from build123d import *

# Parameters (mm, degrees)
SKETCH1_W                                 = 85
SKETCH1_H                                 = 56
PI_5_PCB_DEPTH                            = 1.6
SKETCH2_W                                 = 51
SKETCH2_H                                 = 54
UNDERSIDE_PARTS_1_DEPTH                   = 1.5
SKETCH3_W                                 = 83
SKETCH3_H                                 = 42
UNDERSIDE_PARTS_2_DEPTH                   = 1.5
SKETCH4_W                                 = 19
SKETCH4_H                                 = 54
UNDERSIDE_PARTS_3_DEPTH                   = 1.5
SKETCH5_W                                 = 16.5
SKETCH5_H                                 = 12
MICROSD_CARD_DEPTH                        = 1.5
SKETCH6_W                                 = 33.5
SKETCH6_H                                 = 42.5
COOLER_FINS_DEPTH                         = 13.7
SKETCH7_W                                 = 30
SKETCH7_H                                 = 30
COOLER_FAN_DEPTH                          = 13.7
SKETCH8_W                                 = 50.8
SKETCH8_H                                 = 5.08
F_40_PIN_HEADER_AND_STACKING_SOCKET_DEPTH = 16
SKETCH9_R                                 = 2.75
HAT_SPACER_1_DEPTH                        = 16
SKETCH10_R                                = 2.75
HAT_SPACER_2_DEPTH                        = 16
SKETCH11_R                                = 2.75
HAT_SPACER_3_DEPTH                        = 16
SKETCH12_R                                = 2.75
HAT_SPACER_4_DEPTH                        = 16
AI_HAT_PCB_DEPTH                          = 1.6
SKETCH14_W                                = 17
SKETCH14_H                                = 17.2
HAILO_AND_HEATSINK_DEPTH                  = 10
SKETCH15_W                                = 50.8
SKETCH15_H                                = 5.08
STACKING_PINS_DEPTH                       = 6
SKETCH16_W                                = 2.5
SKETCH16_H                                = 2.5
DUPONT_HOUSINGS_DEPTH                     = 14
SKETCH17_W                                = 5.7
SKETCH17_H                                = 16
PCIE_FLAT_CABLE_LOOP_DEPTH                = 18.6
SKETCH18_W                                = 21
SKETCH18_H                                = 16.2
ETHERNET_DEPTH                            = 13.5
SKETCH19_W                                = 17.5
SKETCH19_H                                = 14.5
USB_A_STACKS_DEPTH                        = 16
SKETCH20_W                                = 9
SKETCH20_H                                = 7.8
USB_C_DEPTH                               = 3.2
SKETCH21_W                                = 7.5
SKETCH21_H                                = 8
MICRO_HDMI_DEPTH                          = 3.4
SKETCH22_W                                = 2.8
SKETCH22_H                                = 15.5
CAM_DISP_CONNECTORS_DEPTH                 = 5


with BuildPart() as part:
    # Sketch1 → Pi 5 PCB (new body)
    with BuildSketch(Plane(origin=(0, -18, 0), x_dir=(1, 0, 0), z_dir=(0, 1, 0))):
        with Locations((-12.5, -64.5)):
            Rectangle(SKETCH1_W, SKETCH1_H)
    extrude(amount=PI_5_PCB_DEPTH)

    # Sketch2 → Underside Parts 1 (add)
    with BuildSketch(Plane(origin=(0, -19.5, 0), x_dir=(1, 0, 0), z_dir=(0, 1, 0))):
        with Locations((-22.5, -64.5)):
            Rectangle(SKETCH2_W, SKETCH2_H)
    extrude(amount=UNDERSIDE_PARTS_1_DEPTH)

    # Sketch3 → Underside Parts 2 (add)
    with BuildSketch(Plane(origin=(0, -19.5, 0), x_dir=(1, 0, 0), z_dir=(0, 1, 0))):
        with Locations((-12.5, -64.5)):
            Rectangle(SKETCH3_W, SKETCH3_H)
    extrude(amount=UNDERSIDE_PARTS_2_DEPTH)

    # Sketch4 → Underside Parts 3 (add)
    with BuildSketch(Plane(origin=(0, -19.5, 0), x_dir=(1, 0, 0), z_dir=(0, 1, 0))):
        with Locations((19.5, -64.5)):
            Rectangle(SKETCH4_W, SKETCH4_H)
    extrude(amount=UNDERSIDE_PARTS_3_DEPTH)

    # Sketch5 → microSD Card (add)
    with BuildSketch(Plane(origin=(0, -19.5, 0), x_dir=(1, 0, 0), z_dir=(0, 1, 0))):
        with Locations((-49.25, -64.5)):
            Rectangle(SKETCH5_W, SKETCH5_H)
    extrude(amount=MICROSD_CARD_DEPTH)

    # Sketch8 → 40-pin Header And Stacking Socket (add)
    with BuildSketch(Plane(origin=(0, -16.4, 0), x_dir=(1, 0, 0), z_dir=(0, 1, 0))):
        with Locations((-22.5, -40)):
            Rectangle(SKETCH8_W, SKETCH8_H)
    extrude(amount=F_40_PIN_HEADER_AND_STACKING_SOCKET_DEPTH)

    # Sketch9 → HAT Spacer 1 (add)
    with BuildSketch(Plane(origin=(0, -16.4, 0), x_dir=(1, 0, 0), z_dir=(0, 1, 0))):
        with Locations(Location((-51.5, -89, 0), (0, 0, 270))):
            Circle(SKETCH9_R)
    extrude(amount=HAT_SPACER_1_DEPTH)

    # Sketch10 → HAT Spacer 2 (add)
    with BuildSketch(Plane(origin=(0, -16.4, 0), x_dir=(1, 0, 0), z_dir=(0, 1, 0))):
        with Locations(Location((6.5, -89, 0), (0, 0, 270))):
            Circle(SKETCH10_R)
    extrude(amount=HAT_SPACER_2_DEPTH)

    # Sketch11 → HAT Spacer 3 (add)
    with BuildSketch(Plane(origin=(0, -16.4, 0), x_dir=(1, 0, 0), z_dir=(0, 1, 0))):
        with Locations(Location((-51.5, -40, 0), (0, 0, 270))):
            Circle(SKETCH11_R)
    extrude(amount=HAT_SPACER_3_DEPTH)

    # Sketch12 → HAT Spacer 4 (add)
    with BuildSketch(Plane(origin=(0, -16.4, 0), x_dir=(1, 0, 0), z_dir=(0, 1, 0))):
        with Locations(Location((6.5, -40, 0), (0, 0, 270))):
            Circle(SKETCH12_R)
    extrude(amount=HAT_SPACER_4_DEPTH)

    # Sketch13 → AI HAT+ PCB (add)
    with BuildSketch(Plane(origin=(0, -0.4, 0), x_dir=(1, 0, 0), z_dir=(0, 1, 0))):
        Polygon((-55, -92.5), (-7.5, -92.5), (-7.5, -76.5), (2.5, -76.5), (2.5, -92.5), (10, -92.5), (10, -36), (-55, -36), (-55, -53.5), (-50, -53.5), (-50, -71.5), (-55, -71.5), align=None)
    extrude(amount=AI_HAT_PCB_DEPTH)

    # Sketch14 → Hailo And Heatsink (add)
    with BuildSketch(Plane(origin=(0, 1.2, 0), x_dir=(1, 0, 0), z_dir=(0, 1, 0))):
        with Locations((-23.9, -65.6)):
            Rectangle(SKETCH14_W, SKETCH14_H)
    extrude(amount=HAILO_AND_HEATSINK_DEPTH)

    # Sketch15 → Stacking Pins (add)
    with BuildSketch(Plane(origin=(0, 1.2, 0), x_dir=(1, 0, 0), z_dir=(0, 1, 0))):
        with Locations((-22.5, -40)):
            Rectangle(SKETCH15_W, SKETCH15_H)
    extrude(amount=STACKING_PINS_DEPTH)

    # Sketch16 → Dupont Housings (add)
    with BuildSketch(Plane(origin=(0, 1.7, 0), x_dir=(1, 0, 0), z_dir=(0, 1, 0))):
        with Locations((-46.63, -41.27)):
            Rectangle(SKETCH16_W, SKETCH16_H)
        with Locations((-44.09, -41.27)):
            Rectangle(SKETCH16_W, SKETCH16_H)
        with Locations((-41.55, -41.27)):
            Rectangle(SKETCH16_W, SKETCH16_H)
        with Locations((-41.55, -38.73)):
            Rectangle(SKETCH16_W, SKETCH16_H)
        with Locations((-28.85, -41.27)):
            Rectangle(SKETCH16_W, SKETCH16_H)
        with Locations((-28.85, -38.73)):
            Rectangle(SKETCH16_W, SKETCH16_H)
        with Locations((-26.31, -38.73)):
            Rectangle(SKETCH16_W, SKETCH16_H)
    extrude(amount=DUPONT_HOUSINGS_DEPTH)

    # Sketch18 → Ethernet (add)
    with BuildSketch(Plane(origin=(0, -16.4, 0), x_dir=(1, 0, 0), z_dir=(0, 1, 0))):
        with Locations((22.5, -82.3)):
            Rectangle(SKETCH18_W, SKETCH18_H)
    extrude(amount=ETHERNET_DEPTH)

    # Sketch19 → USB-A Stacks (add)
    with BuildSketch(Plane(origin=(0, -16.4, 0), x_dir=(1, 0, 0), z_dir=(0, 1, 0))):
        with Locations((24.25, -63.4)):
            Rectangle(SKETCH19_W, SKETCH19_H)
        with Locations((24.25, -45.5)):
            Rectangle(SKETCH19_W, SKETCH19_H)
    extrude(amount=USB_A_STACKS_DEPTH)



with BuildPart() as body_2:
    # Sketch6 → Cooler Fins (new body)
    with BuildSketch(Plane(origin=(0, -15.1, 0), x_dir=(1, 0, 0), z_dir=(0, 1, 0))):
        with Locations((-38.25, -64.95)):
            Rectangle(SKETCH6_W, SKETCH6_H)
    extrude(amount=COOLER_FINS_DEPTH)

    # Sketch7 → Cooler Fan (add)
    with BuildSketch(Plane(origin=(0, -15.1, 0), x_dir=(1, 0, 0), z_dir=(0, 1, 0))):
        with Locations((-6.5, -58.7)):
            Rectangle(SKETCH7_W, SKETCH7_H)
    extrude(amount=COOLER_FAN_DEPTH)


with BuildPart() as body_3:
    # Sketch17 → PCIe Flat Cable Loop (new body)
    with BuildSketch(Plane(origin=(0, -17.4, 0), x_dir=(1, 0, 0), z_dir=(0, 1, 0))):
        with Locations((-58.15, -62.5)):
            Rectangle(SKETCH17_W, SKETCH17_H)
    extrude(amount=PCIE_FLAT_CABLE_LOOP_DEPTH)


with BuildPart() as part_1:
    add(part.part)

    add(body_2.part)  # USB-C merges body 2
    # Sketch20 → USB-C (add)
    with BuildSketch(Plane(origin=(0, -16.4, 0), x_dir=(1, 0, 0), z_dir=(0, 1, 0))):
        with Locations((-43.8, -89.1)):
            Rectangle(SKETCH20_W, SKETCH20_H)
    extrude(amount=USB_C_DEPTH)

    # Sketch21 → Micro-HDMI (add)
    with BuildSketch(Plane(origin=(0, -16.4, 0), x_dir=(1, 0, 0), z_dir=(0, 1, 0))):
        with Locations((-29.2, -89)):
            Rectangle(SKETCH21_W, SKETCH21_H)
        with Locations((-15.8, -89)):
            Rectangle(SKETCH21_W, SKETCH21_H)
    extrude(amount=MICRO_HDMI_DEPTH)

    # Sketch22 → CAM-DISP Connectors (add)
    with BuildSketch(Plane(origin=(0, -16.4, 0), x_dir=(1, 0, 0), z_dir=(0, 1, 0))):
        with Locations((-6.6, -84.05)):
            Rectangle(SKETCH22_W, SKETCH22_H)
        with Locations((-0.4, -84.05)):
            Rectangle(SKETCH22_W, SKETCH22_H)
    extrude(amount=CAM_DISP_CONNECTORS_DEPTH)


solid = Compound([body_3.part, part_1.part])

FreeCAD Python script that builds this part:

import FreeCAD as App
import Part
import Sketcher
Q = App.Units.Quantity

doc = App.newDocument("Part")
body = doc.addObject("PartDesign::Body", "Body")

# Sketch on XZ plane
sketch1 = body.newObject("Sketcher::SketchObject", "Sketch")
sketch1.AttachmentSupport = (doc.getObject("XZ_Plane"), [""])
sketch1.MapMode = "FlatFace"
sketch1.AttachmentOffset = App.Placement(App.Vector(0, 0, 18), App.Rotation())
sketch1.addGeometry([
    Part.LineSegment(App.Vector(-55, 36, 0), App.Vector(-55, 92, 0)),
    Part.LineSegment(App.Vector(-55, 92, 0), App.Vector(30, 92, 0)),
    Part.LineSegment(App.Vector(30, 92, 0), App.Vector(30, 36, 0)),
    Part.LineSegment(App.Vector(30, 36, 0), App.Vector(-55, 36, 0)),
], False)
sketch1.addConstraint([
    Sketcher.Constraint("Coincident", 0, 2, 1, 1),
    Sketcher.Constraint("Coincident", 1, 2, 2, 1),
    Sketcher.Constraint("Coincident", 2, 2, 3, 1),
    Sketcher.Constraint("Coincident", 3, 2, 0, 1),
    Sketcher.Constraint("Vertical", 0),
    Sketcher.Constraint("Horizontal", 1),
    Sketcher.Constraint("Vertical", 2),
    Sketcher.Constraint("Horizontal", 3),
    Sketcher.Constraint("DistanceX", 1, 1, 1, 2, Q("85 mm")),
    Sketcher.Constraint("DistanceY", 0, 1, 0, 2, Q("56 mm")),
    Sketcher.Constraint("DistanceX", 0, 2, -1, 1, Q("55 mm")),
    Sketcher.Constraint("DistanceY", -1, 1, 0, 2, Q("92.5 mm")),
])
pad1 = body.newObject("PartDesign::Pad", "Pad")
pad1.Profile = sketch1
pad1.Length = 1.6
pad1.Reversed = True

# Sketch on XZ plane
sketch2 = body.newObject("Sketcher::SketchObject", "Sketch001")
sketch2.AttachmentSupport = (doc.getObject("XZ_Plane"), [""])
sketch2.MapMode = "FlatFace"
sketch2.AttachmentOffset = App.Placement(App.Vector(0, 0, 19.5), App.Rotation())
sketch2.addGeometry([
    Part.LineSegment(App.Vector(-48, 38, 0), App.Vector(-48, 92, 0)),
    Part.LineSegment(App.Vector(-48, 92, 0), App.Vector(3, 92, 0)),
    Part.LineSegment(App.Vector(3, 92, 0), App.Vector(3, 38, 0)),
    Part.LineSegment(App.Vector(3, 38, 0), App.Vector(-48, 38, 0)),
], False)
sketch2.addConstraint([
    Sketcher.Constraint("Coincident", 0, 2, 1, 1),
    Sketcher.Constraint("Coincident", 1, 2, 2, 1),
    Sketcher.Constraint("Coincident", 2, 2, 3, 1),
    Sketcher.Constraint("Coincident", 3, 2, 0, 1),
    Sketcher.Constraint("Vertical", 0),
    Sketcher.Constraint("Horizontal", 1),
    Sketcher.Constraint("Vertical", 2),
    Sketcher.Constraint("Horizontal", 3),
    Sketcher.Constraint("DistanceX", 1, 1, 1, 2, Q("51 mm")),
    Sketcher.Constraint("DistanceY", 0, 1, 0, 2, Q("54 mm")),
    Sketcher.Constraint("DistanceX", 0, 2, -1, 1, Q("48 mm")),
    Sketcher.Constraint("DistanceY", -1, 1, 0, 2, Q("91.5 mm")),
])
pad2 = body.newObject("PartDesign::Pad", "Pad001")
pad2.Profile = sketch2
pad2.Length = 1.5
pad2.Reversed = True

# Sketch on XZ plane
sketch3 = body.newObject("Sketcher::SketchObject", "Sketch002")
sketch3.AttachmentSupport = (doc.getObject("XZ_Plane"), [""])
sketch3.MapMode = "FlatFace"
sketch3.AttachmentOffset = App.Placement(App.Vector(0, 0, 19.5), App.Rotation())
sketch3.addGeometry([
    Part.LineSegment(App.Vector(-54, 44, 0), App.Vector(-54, 86, 0)),
    Part.LineSegment(App.Vector(-54, 86, 0), App.Vector(29, 86, 0)),
    Part.LineSegment(App.Vector(29, 86, 0), App.Vector(29, 44, 0)),
    Part.LineSegment(App.Vector(29, 44, 0), App.Vector(-54, 44, 0)),
], False)
sketch3.addConstraint([
    Sketcher.Constraint("Coincident", 0, 2, 1, 1),
    Sketcher.Constraint("Coincident", 1, 2, 2, 1),
    Sketcher.Constraint("Coincident", 2, 2, 3, 1),
    Sketcher.Constraint("Coincident", 3, 2, 0, 1),
    Sketcher.Constraint("Vertical", 0),
    Sketcher.Constraint("Horizontal", 1),
    Sketcher.Constraint("Vertical", 2),
    Sketcher.Constraint("Horizontal", 3),
    Sketcher.Constraint("DistanceX", 1, 1, 1, 2, Q("83 mm")),
    Sketcher.Constraint("DistanceY", 0, 1, 0, 2, Q("42 mm")),
    Sketcher.Constraint("DistanceX", 0, 2, -1, 1, Q("54 mm")),
    Sketcher.Constraint("DistanceY", -1, 1, 0, 2, Q("85.5 mm")),
])
pad3 = body.newObject("PartDesign::Pad", "Pad002")
pad3.Profile = sketch3
pad3.Length = 1.5
pad3.Reversed = True

# Sketch on XZ plane
sketch4 = body.newObject("Sketcher::SketchObject", "Sketch003")
sketch4.AttachmentSupport = (doc.getObject("XZ_Plane"), [""])
sketch4.MapMode = "FlatFace"
sketch4.AttachmentOffset = App.Placement(App.Vector(0, 0, 19.5), App.Rotation())
sketch4.addGeometry([
    Part.LineSegment(App.Vector(10, 38, 0), App.Vector(10, 92, 0)),
    Part.LineSegment(App.Vector(10, 92, 0), App.Vector(29, 92, 0)),
    Part.LineSegment(App.Vector(29, 92, 0), App.Vector(29, 38, 0)),
    Part.LineSegment(App.Vector(29, 38, 0), App.Vector(10, 38, 0)),
], False)
sketch4.addConstraint([
    Sketcher.Constraint("Coincident", 0, 2, 1, 1),
    Sketcher.Constraint("Coincident", 1, 2, 2, 1),
    Sketcher.Constraint("Coincident", 2, 2, 3, 1),
    Sketcher.Constraint("Coincident", 3, 2, 0, 1),
    Sketcher.Constraint("Vertical", 0),
    Sketcher.Constraint("Horizontal", 1),
    Sketcher.Constraint("Vertical", 2),
    Sketcher.Constraint("Horizontal", 3),
    Sketcher.Constraint("DistanceX", 1, 1, 1, 2, Q("19 mm")),
    Sketcher.Constraint("DistanceY", 0, 1, 0, 2, Q("54 mm")),
    Sketcher.Constraint("DistanceX", -1, 1, 0, 2, Q("10 mm")),
    Sketcher.Constraint("DistanceY", -1, 1, 0, 2, Q("91.5 mm")),
])
pad4 = body.newObject("PartDesign::Pad", "Pad003")
pad4.Profile = sketch4
pad4.Length = 1.5
pad4.Reversed = True

# Sketch on XZ plane
sketch5 = body.newObject("Sketcher::SketchObject", "Sketch004")
sketch5.AttachmentSupport = (doc.getObject("XZ_Plane"), [""])
sketch5.MapMode = "FlatFace"
sketch5.AttachmentOffset = App.Placement(App.Vector(0, 0, 19.5), App.Rotation())
sketch5.addGeometry([
    Part.LineSegment(App.Vector(-58, 58, 0), App.Vector(-58, 70, 0)),
    Part.LineSegment(App.Vector(-58, 70, 0), App.Vector(-41, 70, 0)),
    Part.LineSegment(App.Vector(-41, 70, 0), App.Vector(-41, 58, 0)),
    Part.LineSegment(App.Vector(-41, 58, 0), App.Vector(-58, 58, 0)),
], False)
sketch5.addConstraint([
    Sketcher.Constraint("Coincident", 0, 2, 1, 1),
    Sketcher.Constraint("Coincident", 1, 2, 2, 1),
    Sketcher.Constraint("Coincident", 2, 2, 3, 1),
    Sketcher.Constraint("Coincident", 3, 2, 0, 1),
    Sketcher.Constraint("Vertical", 0),
    Sketcher.Constraint("Horizontal", 1),
    Sketcher.Constraint("Vertical", 2),
    Sketcher.Constraint("Horizontal", 3),
    Sketcher.Constraint("DistanceY", 0, 1, 0, 2, Q("12 mm")),
    Sketcher.Constraint("DistanceX", 1, 1, 1, 2, Q("16.5 mm")),
    Sketcher.Constraint("DistanceX", 1, 2, -1, 1, Q("41 mm")),
    Sketcher.Constraint("DistanceY", -1, 1, 0, 2, Q("70.5 mm")),
])
pad5 = body.newObject("PartDesign::Pad", "Pad004")
pad5.Profile = sketch5
pad5.Length = 1.5
pad5.Reversed = True

# Sketch on XZ plane
sketch6 = body.newObject("Sketcher::SketchObject", "Sketch005")
sketch6.AttachmentSupport = (doc.getObject("XZ_Plane"), [""])
sketch6.MapMode = "FlatFace"
sketch6.AttachmentOffset = App.Placement(App.Vector(0, 0, 16.4), App.Rotation())
sketch6.addGeometry([
    Part.LineSegment(App.Vector(-48, 37, 0), App.Vector(-48, 43, 0)),
    Part.LineSegment(App.Vector(-48, 43, 0), App.Vector(3, 43, 0)),
    Part.LineSegment(App.Vector(3, 43, 0), App.Vector(3, 37, 0)),
    Part.LineSegment(App.Vector(3, 37, 0), App.Vector(-48, 37, 0)),
], False)
sketch6.addConstraint([
    Sketcher.Constraint("Coincident", 0, 2, 1, 1),
    Sketcher.Constraint("Coincident", 1, 2, 2, 1),
    Sketcher.Constraint("Coincident", 2, 2, 3, 1),
    Sketcher.Constraint("Coincident", 3, 2, 0, 1),
    Sketcher.Constraint("Vertical", 0),
    Sketcher.Constraint("Horizontal", 1),
    Sketcher.Constraint("Vertical", 2),
    Sketcher.Constraint("Horizontal", 3),
    Sketcher.Constraint("DistanceX", 1, 1, 1, 2, Q("50.8 mm")),
    Sketcher.Constraint("DistanceY", 0, 1, 0, 2, Q("5.08 mm")),
    Sketcher.Constraint("DistanceX", 0, 2, -1, 1, Q("47.9 mm")),
    Sketcher.Constraint("DistanceY", -1, 1, 0, 2, Q("42.54 mm")),
])
pad6 = body.newObject("PartDesign::Pad", "Pad005")
pad6.Profile = sketch6
pad6.Length = 16
pad6.Reversed = True

# Sketch on XZ plane
sketch7 = body.newObject("Sketcher::SketchObject", "Sketch006")
sketch7.AttachmentSupport = (doc.getObject("XZ_Plane"), [""])
sketch7.MapMode = "FlatFace"
sketch7.AttachmentOffset = App.Placement(App.Vector(0, 0, 16.4), App.Rotation())
sketch7.addGeometry(Part.Circle(App.Vector(-51.5, 89, 0), App.Vector(0, 0, 1), 2.8), False)
sketch7.addConstraint([
    Sketcher.Constraint("Diameter", 0, Q("5.5 mm")),
    Sketcher.Constraint("DistanceY", -1, 1, 0, 3, Q("89 mm")),
    Sketcher.Constraint("DistanceX", 0, 3, -1, 1, Q("51.5 mm")),
])
pad7 = body.newObject("PartDesign::Pad", "Pad006")
pad7.Profile = sketch7
pad7.Length = 16
pad7.Reversed = True

# Sketch on XZ plane
sketch8 = body.newObject("Sketcher::SketchObject", "Sketch007")
sketch8.AttachmentSupport = (doc.getObject("XZ_Plane"), [""])
sketch8.MapMode = "FlatFace"
sketch8.AttachmentOffset = App.Placement(App.Vector(0, 0, 16.4), App.Rotation())
sketch8.addGeometry(Part.Circle(App.Vector(6.5, 89, 0), App.Vector(0, 0, 1), 2.8), False)
sketch8.addConstraint([
    Sketcher.Constraint("Diameter", 0, Q("5.5 mm")),
    Sketcher.Constraint("DistanceY", -1, 1, 0, 3, Q("89 mm")),
    Sketcher.Constraint("DistanceX", -1, 1, 0, 3, Q("6.5 mm")),
])
pad8 = body.newObject("PartDesign::Pad", "Pad007")
pad8.Profile = sketch8
pad8.Length = 16
pad8.Reversed = True

# Sketch on XZ plane
sketch9 = body.newObject("Sketcher::SketchObject", "Sketch008")
sketch9.AttachmentSupport = (doc.getObject("XZ_Plane"), [""])
sketch9.MapMode = "FlatFace"
sketch9.AttachmentOffset = App.Placement(App.Vector(0, 0, 16.4), App.Rotation())
sketch9.addGeometry(Part.Circle(App.Vector(-51.5, 40, 0), App.Vector(0, 0, 1), 2.8), False)
sketch9.addConstraint([
    Sketcher.Constraint("Diameter", 0, Q("5.5 mm")),
    Sketcher.Constraint("DistanceY", -1, 1, 0, 3, Q("40 mm")),
    Sketcher.Constraint("DistanceX", 0, 3, -1, 1, Q("51.5 mm")),
])
pad9 = body.newObject("PartDesign::Pad", "Pad008")
pad9.Profile = sketch9
pad9.Length = 16
pad9.Reversed = True

# Sketch on XZ plane
sketch10 = body.newObject("Sketcher::SketchObject", "Sketch009")
sketch10.AttachmentSupport = (doc.getObject("XZ_Plane"), [""])
sketch10.MapMode = "FlatFace"
sketch10.AttachmentOffset = App.Placement(App.Vector(0, 0, 16.4), App.Rotation())
sketch10.addGeometry(Part.Circle(App.Vector(6.5, 40, 0), App.Vector(0, 0, 1), 2.8), False)
sketch10.addConstraint([
    Sketcher.Constraint("Diameter", 0, Q("5.5 mm")),
    Sketcher.Constraint("DistanceY", -1, 1, 0, 3, Q("40 mm")),
    Sketcher.Constraint("DistanceX", -1, 1, 0, 3, Q("6.5 mm")),
])
pad10 = body.newObject("PartDesign::Pad", "Pad009")
pad10.Profile = sketch10
pad10.Length = 16
pad10.Reversed = True

# Sketch on XZ plane
sketch11 = body.newObject("Sketcher::SketchObject", "Sketch010")
sketch11.AttachmentSupport = (doc.getObject("XZ_Plane"), [""])
sketch11.MapMode = "FlatFace"
sketch11.AttachmentOffset = App.Placement(App.Vector(0, 0, 0.4), App.Rotation())
sketch11.addGeometry([
    Part.LineSegment(App.Vector(-55, 92, 0), App.Vector(-8, 92, 0)),  # 0
    Part.LineSegment(App.Vector(-8, 92, 0), App.Vector(-8, 76, 0)),  # 1
    Part.LineSegment(App.Vector(-8, 76, 0), App.Vector(2, 76, 0)),  # 2
    Part.LineSegment(App.Vector(2, 76, 0), App.Vector(2, 92, 0)),  # 3
    Part.LineSegment(App.Vector(2, 92, 0), App.Vector(10, 92, 0)),  # 4
    Part.LineSegment(App.Vector(10, 92, 0), App.Vector(10, 36, 0)),  # 5
    Part.LineSegment(App.Vector(10, 36, 0), App.Vector(-55, 36, 0)),  # 6
    Part.LineSegment(App.Vector(-55, 36, 0), App.Vector(-55, 54, 0)),  # 7
    Part.LineSegment(App.Vector(-55, 54, 0), App.Vector(-50, 54, 0)),  # 8
    Part.LineSegment(App.Vector(-50, 54, 0), App.Vector(-50, 72, 0)),  # 9
    Part.LineSegment(App.Vector(-50, 72, 0), App.Vector(-55, 72, 0)),  # 10
    Part.LineSegment(App.Vector(-55, 72, 0), App.Vector(-55, 92, 0)),  # 11
], False)
sketch11.addConstraint([
    Sketcher.Constraint("Coincident", 0, 2, 1, 1),
    Sketcher.Constraint("Coincident", 1, 2, 2, 1),
    Sketcher.Constraint("Coincident", 2, 2, 3, 1),
    Sketcher.Constraint("Coincident", 3, 2, 4, 1),
    Sketcher.Constraint("Coincident", 4, 2, 5, 1),
    Sketcher.Constraint("Coincident", 5, 2, 6, 1),
    Sketcher.Constraint("Coincident", 6, 2, 7, 1),
    Sketcher.Constraint("Coincident", 7, 2, 8, 1),
    Sketcher.Constraint("Coincident", 8, 2, 9, 1),
    Sketcher.Constraint("Coincident", 9, 2, 10, 1),
    Sketcher.Constraint("Coincident", 10, 2, 11, 1),
    Sketcher.Constraint("Coincident", 11, 2, 0, 1),
    Sketcher.Constraint("Horizontal", 0),
    Sketcher.Constraint("Vertical", 1),
    Sketcher.Constraint("Horizontal", 2),
    Sketcher.Constraint("Vertical", 3),
    Sketcher.Constraint("Horizontal", 4),
    Sketcher.Constraint("Vertical", 5),
    Sketcher.Constraint("Horizontal", 6),
    Sketcher.Constraint("Vertical", 7),
    Sketcher.Constraint("Horizontal", 8),
    Sketcher.Constraint("Vertical", 9),
    Sketcher.Constraint("Horizontal", 10),
    Sketcher.Constraint("Vertical", 11),
    Sketcher.Constraint("Horizontal", 0, 2, 3, 2),
    Sketcher.Constraint("Vertical", 7, 2, 10, 2),
    Sketcher.Constraint("DistanceX", 2, 1, 2, 2, Q("10 mm")),
    Sketcher.Constraint("DistanceX", 6, 2, 6, 1, Q("65 mm")),
    Sketcher.Constraint("DistanceX", 8, 1, 8, 2, Q("5 mm")),
    Sketcher.Constraint("DistanceY", 1, 2, 1, 1, Q("16 mm")),
    Sketcher.Constraint("DistanceY", 9, 1, 9, 2, Q("18 mm")),
    Sketcher.Constraint("DistanceY", 11, 1, 11, 2, Q("21 mm")),
    Sketcher.Constraint("DistanceX", 0, 1, 0, 2, Q("47.5 mm")),
    Sketcher.Constraint("DistanceY", 5, 2, 5, 1, Q("56.5 mm")),
    Sketcher.Constraint("DistanceX", -1, 1, 4, 2, Q("10 mm")),
    Sketcher.Constraint("DistanceY", -1, 1, 5, 2, Q("36 mm")),
])
pad11 = body.newObject("PartDesign::Pad", "Pad010")
pad11.Profile = sketch11
pad11.Length = 1.6
pad11.Reversed = True

# Sketch on XZ plane
sketch12 = body.newObject("Sketcher::SketchObject", "Sketch011")
sketch12.AttachmentSupport = (doc.getObject("XZ_Plane"), [""])
sketch12.MapMode = "FlatFace"
sketch12.AttachmentOffset = App.Placement(App.Vector(0, 0, -1.2), App.Rotation())
sketch12.addGeometry([
    Part.LineSegment(App.Vector(-32, 57, 0), App.Vector(-32, 74, 0)),
    Part.LineSegment(App.Vector(-32, 74, 0), App.Vector(-15, 74, 0)),
    Part.LineSegment(App.Vector(-15, 74, 0), App.Vector(-15, 57, 0)),
    Part.LineSegment(App.Vector(-15, 57, 0), App.Vector(-32, 57, 0)),
], False)
sketch12.addConstraint([
    Sketcher.Constraint("Coincident", 0, 2, 1, 1),
    Sketcher.Constraint("Coincident", 1, 2, 2, 1),
    Sketcher.Constraint("Coincident", 2, 2, 3, 1),
    Sketcher.Constraint("Coincident", 3, 2, 0, 1),
    Sketcher.Constraint("Vertical", 0),
    Sketcher.Constraint("Horizontal", 1),
    Sketcher.Constraint("Vertical", 2),
    Sketcher.Constraint("Horizontal", 3),
    Sketcher.Constraint("DistanceX", 1, 1, 1, 2, Q("17 mm")),
    Sketcher.Constraint("DistanceY", 0, 1, 0, 2, Q("17.2 mm")),
    Sketcher.Constraint("DistanceY", -1, 1, 2, 2, Q("57 mm")),
    Sketcher.Constraint("DistanceX", 0, 2, -1, 1, Q("32.4 mm")),
])
pad12 = body.newObject("PartDesign::Pad", "Pad011")
pad12.Profile = sketch12
pad12.Length = 10
pad12.Reversed = True

# Sketch on XZ plane
sketch13 = body.newObject("Sketcher::SketchObject", "Sketch012")
sketch13.AttachmentSupport = (doc.getObject("XZ_Plane"), [""])
sketch13.MapMode = "FlatFace"
sketch13.AttachmentOffset = App.Placement(App.Vector(0, 0, -1.2), App.Rotation())
sketch13.addGeometry([
    Part.LineSegment(App.Vector(-48, 37, 0), App.Vector(-48, 43, 0)),
    Part.LineSegment(App.Vector(-48, 43, 0), App.Vector(3, 43, 0)),
    Part.LineSegment(App.Vector(3, 43, 0), App.Vector(3, 37, 0)),
    Part.LineSegment(App.Vector(3, 37, 0), App.Vector(-48, 37, 0)),
], False)
sketch13.addConstraint([
    Sketcher.Constraint("Coincident", 0, 2, 1, 1),
    Sketcher.Constraint("Coincident", 1, 2, 2, 1),
    Sketcher.Constraint("Coincident", 2, 2, 3, 1),
    Sketcher.Constraint("Coincident", 3, 2, 0, 1),
    Sketcher.Constraint("Vertical", 0),
    Sketcher.Constraint("Horizontal", 1),
    Sketcher.Constraint("Vertical", 2),
    Sketcher.Constraint("Horizontal", 3),
    Sketcher.Constraint("DistanceX", 1, 1, 1, 2, Q("50.8 mm")),
    Sketcher.Constraint("DistanceY", 0, 1, 0, 2, Q("5.08 mm")),
    Sketcher.Constraint("DistanceX", 0, 2, -1, 1, Q("47.9 mm")),
    Sketcher.Constraint("DistanceY", -1, 1, 0, 2, Q("42.54 mm")),
])
pad13 = body.newObject("PartDesign::Pad", "Pad012")
pad13.Profile = sketch13
pad13.Length = 6
pad13.Reversed = True

# Sketch on XZ plane
sketch14 = body.newObject("Sketcher::SketchObject", "Sketch013")
sketch14.AttachmentSupport = (doc.getObject("XZ_Plane"), [""])
sketch14.MapMode = "FlatFace"
sketch14.AttachmentOffset = App.Placement(App.Vector(0, 0, -1.7), App.Rotation())
sketch14.addGeometry([
    Part.LineSegment(App.Vector(-47.9, 40, 0), App.Vector(-47.9, 42.5, 0)),  # 0
    Part.LineSegment(App.Vector(-47.9, 42.5, 0), App.Vector(-45.4, 42.5, 0)),  # 1
    Part.LineSegment(App.Vector(-45.4, 42.5, 0), App.Vector(-45.4, 40, 0)),  # 2
    Part.LineSegment(App.Vector(-45.4, 40, 0), App.Vector(-47.9, 40, 0)),  # 3
    Part.LineSegment(App.Vector(-45.3, 40, 0), App.Vector(-45.3, 42.5, 0)),  # 4
    Part.LineSegment(App.Vector(-45.3, 42.5, 0), App.Vector(-42.8, 42.5, 0)),  # 5
    Part.LineSegment(App.Vector(-42.8, 42.5, 0), App.Vector(-42.8, 40, 0)),  # 6
    Part.LineSegment(App.Vector(-42.8, 40, 0), App.Vector(-45.3, 40, 0)),  # 7
    Part.LineSegment(App.Vector(-42.8, 40, 0), App.Vector(-42.8, 42.5, 0)),  # 8
    Part.LineSegment(App.Vector(-42.8, 42.5, 0), App.Vector(-40.3, 42.5, 0)),  # 9
    Part.LineSegment(App.Vector(-40.3, 42.5, 0), App.Vector(-40.3, 40, 0)),  # 10
    Part.LineSegment(App.Vector(-40.3, 40, 0), App.Vector(-42.8, 40, 0)),  # 11
    Part.LineSegment(App.Vector(-42.8, 37.5, 0), App.Vector(-42.8, 40, 0)),  # 12
    Part.LineSegment(App.Vector(-42.8, 40, 0), App.Vector(-40.3, 40, 0)),  # 13
    Part.LineSegment(App.Vector(-40.3, 40, 0), App.Vector(-40.3, 37.5, 0)),  # 14
    Part.LineSegment(App.Vector(-40.3, 37.5, 0), App.Vector(-42.8, 37.5, 0)),  # 15
    Part.LineSegment(App.Vector(-30.1, 40, 0), App.Vector(-30.1, 42.5, 0)),  # 16
    Part.LineSegment(App.Vector(-30.1, 42.5, 0), App.Vector(-27.6, 42.5, 0)),  # 17
    Part.LineSegment(App.Vector(-27.6, 42.5, 0), App.Vector(-27.6, 40, 0)),  # 18
    Part.LineSegment(App.Vector(-27.6, 40, 0), App.Vector(-30.1, 40, 0)),  # 19
    Part.LineSegment(App.Vector(-30.1, 37.5, 0), App.Vector(-30.1, 40, 0)),  # 20
    Part.LineSegment(App.Vector(-30.1, 40, 0), App.Vector(-27.6, 40, 0)),  # 21
    Part.LineSegment(App.Vector(-27.6, 40, 0), App.Vector(-27.6, 37.5, 0)),  # 22
    Part.LineSegment(App.Vector(-27.6, 37.5, 0), App.Vector(-30.1, 37.5, 0)),  # 23
    Part.LineSegment(App.Vector(-27.6, 37.5, 0), App.Vector(-27.6, 40, 0)),  # 24
    Part.LineSegment(App.Vector(-27.6, 40, 0), App.Vector(-25.1, 40, 0)),  # 25
    Part.LineSegment(App.Vector(-25.1, 40, 0), App.Vector(-25.1, 37.5, 0)),  # 26
    Part.LineSegment(App.Vector(-25.1, 37.5, 0), App.Vector(-27.6, 37.5, 0)),  # 27
], False)
sketch14.addConstraint([
    Sketcher.Constraint("Coincident", 0, 2, 1, 1),
    Sketcher.Constraint("Coincident", 1, 2, 2, 1),
    Sketcher.Constraint("Coincident", 2, 2, 3, 1),
    Sketcher.Constraint("Coincident", 3, 2, 0, 1),
    Sketcher.Constraint("Coincident", 4, 2, 5, 1),
    Sketcher.Constraint("Coincident", 5, 2, 6, 1),
    Sketcher.Constraint("Coincident", 6, 2, 7, 1),
    Sketcher.Constraint("Coincident", 7, 2, 4, 1),
    Sketcher.Constraint("Coincident", 8, 2, 9, 1),
    Sketcher.Constraint("Coincident", 9, 2, 10, 1),
    Sketcher.Constraint("Coincident", 10, 2, 11, 1),
    Sketcher.Constraint("Coincident", 11, 2, 8, 1),
    Sketcher.Constraint("Coincident", 12, 2, 13, 1),
    Sketcher.Constraint("Coincident", 13, 2, 14, 1),
    Sketcher.Constraint("Coincident", 14, 2, 15, 1),
    Sketcher.Constraint("Coincident", 15, 2, 12, 1),
    Sketcher.Constraint("Coincident", 16, 2, 17, 1),
    Sketcher.Constraint("Coincident", 17, 2, 18, 1),
    Sketcher.Constraint("Coincident", 18, 2, 19, 1),
    Sketcher.Constraint("Coincident", 19, 2, 16, 1),
    Sketcher.Constraint("Coincident", 20, 2, 21, 1),
    Sketcher.Constraint("Coincident", 21, 2, 22, 1),
    Sketcher.Constraint("Coincident", 22, 2, 23, 1),
    Sketcher.Constraint("Coincident", 23, 2, 20, 1),
    Sketcher.Constraint("Coincident", 24, 2, 25, 1),
    Sketcher.Constraint("Coincident", 25, 2, 26, 1),
    Sketcher.Constraint("Coincident", 26, 2, 27, 1),
    Sketcher.Constraint("Coincident", 27, 2, 24, 1),
    Sketcher.Constraint("Vertical", 0),
    Sketcher.Constraint("Horizontal", 1),
    Sketcher.Constraint("Vertical", 2),
    Sketcher.Constraint("Horizontal", 3),
    Sketcher.Constraint("Vertical", 4),
    Sketcher.Constraint("Horizontal", 5),
    Sketcher.Constraint("Vertical", 6),
    Sketcher.Constraint("Horizontal", 7),
    Sketcher.Constraint("Vertical", 8),
    Sketcher.Constraint("Horizontal", 9),
    Sketcher.Constraint("Vertical", 10),
    Sketcher.Constraint("Horizontal", 11),
    Sketcher.Constraint("Vertical", 12),
    Sketcher.Constraint("Horizontal", 13),
    Sketcher.Constraint("Vertical", 14),
    Sketcher.Constraint("Horizontal", 15),
    Sketcher.Constraint("Vertical", 16),
    Sketcher.Constraint("Horizontal", 17),
    Sketcher.Constraint("Vertical", 18),
    Sketcher.Constraint("Horizontal", 19),
    Sketcher.Constraint("Vertical", 20),
    Sketcher.Constraint("Horizontal", 21),
    Sketcher.Constraint("Vertical", 22),
    Sketcher.Constraint("Horizontal", 23),
    Sketcher.Constraint("Vertical", 24),
    Sketcher.Constraint("Horizontal", 25),
    Sketcher.Constraint("Vertical", 26),
    Sketcher.Constraint("Horizontal", 27),
    Sketcher.Constraint("Horizontal", 1, 2, 4, 2),
    Sketcher.Constraint("Horizontal", 3, 2, 6, 2),
    Sketcher.Constraint("Horizontal", 5, 2, 8, 2),
    Sketcher.Constraint("Horizontal", 7, 2, 10, 2),
    Sketcher.Constraint("Horizontal", 9, 2, 16, 2),
    Sketcher.Constraint("Horizontal", 11, 2, 18, 2),
    Sketcher.Constraint("Horizontal", 13, 2, 20, 2),
    Sketcher.Constraint("Horizontal", 15, 2, 22, 2),
    Sketcher.Constraint("Horizontal", 21, 2, 24, 2),
    Sketcher.Constraint("Horizontal", 23, 2, 26, 2),
    Sketcher.Constraint("Vertical", 11, 2, 12, 2),
    Sketcher.Constraint("Vertical", 10, 2, 13, 2),
    Sketcher.Constraint("Vertical", 19, 2, 20, 2),
    Sketcher.Constraint("Vertical", 18, 2, 21, 2),
    Sketcher.Constraint("Equal", 3, 5),
    Sketcher.Constraint("Equal", 7, 9),
    Sketcher.Constraint("Equal", 15, 17),
    Sketcher.Constraint("Equal", 23, 25),
    Sketcher.Constraint("Equal", 27, 0),
    Sketcher.Constraint("Equal", 10, 12),
    Sketcher.Constraint("DistanceX", 1, 1, 1, 2, Q("2.5 mm")),
    Sketcher.Constraint("DistanceX", 8, 2, -1, 1, Q("42.8 mm")),
    Sketcher.Constraint("DistanceX", 16, 2, -1, 1, Q("30.1 mm")),
    Sketcher.Constraint("DistanceX", 0, 2, -1, 1, Q("47.88 mm")),
    Sketcher.Constraint("DistanceY", -1, 1, 0, 2, Q("42.52 mm")),
    Sketcher.Constraint("DistanceX", 4, 2, -1, 1, Q("45.34 mm")),
    Sketcher.Constraint("DistanceY", -1, 1, 12, 2, Q("39.98 mm")),
    Sketcher.Constraint("DistanceX", 24, 2, -1, 1, Q("27.56 mm")),
])
pad14 = body.newObject("PartDesign::Pad", "Pad013")
pad14.Profile = sketch14
pad14.Length = 14
pad14.Reversed = True

# Sketch on XZ plane
sketch15 = body.newObject("Sketcher::SketchObject", "Sketch014")
sketch15.AttachmentSupport = (doc.getObject("XZ_Plane"), [""])
sketch15.MapMode = "FlatFace"
sketch15.AttachmentOffset = App.Placement(App.Vector(0, 0, 16.4), App.Rotation())
sketch15.addGeometry([
    Part.LineSegment(App.Vector(12, 74, 0), App.Vector(12, 90, 0)),
    Part.LineSegment(App.Vector(12, 90, 0), App.Vector(33, 90, 0)),
    Part.LineSegment(App.Vector(33, 90, 0), App.Vector(33, 74, 0)),
    Part.LineSegment(App.Vector(33, 74, 0), App.Vector(12, 74, 0)),
], False)
sketch15.addConstraint([
    Sketcher.Constraint("Coincident", 0, 2, 1, 1),
    Sketcher.Constraint("Coincident", 1, 2, 2, 1),
    Sketcher.Constraint("Coincident", 2, 2, 3, 1),
    Sketcher.Constraint("Coincident", 3, 2, 0, 1),
    Sketcher.Constraint("Vertical", 0),
    Sketcher.Constraint("Horizontal", 1),
    Sketcher.Constraint("Vertical", 2),
    Sketcher.Constraint("Horizontal", 3),
    Sketcher.Constraint("DistanceX", 1, 1, 1, 2, Q("21 mm")),
    Sketcher.Constraint("DistanceY", 0, 1, 0, 2, Q("16.2 mm")),
    Sketcher.Constraint("DistanceX", -1, 1, 0, 2, Q("12 mm")),
    Sketcher.Constraint("DistanceY", -1, 1, 0, 2, Q("90.4 mm")),
])
pad15 = body.newObject("PartDesign::Pad", "Pad014")
pad15.Profile = sketch15
pad15.Length = 13.5
pad15.Reversed = True

# Sketch on XZ plane
sketch16 = body.newObject("Sketcher::SketchObject", "Sketch015")
sketch16.AttachmentSupport = (doc.getObject("XZ_Plane"), [""])
sketch16.MapMode = "FlatFace"
sketch16.AttachmentOffset = App.Placement(App.Vector(0, 0, 16.4), App.Rotation())
sketch16.addGeometry([
    Part.LineSegment(App.Vector(16, 56, 0), App.Vector(16, 71, 0)),  # 0
    Part.LineSegment(App.Vector(16, 71, 0), App.Vector(33, 71, 0)),  # 1
    Part.LineSegment(App.Vector(33, 71, 0), App.Vector(33, 56, 0)),  # 2
    Part.LineSegment(App.Vector(33, 56, 0), App.Vector(16, 56, 0)),  # 3
    Part.LineSegment(App.Vector(16, 38, 0), App.Vector(16, 53, 0)),  # 4
    Part.LineSegment(App.Vector(16, 53, 0), App.Vector(33, 53, 0)),  # 5
    Part.LineSegment(App.Vector(33, 53, 0), App.Vector(33, 38, 0)),  # 6
    Part.LineSegment(App.Vector(33, 38, 0), App.Vector(16, 38, 0)),  # 7
], False)
sketch16.addConstraint([
    Sketcher.Constraint("Coincident", 0, 2, 1, 1),
    Sketcher.Constraint("Coincident", 1, 2, 2, 1),
    Sketcher.Constraint("Coincident", 2, 2, 3, 1),
    Sketcher.Constraint("Coincident", 3, 2, 0, 1),
    Sketcher.Constraint("Coincident", 4, 2, 5, 1),
    Sketcher.Constraint("Coincident", 5, 2, 6, 1),
    Sketcher.Constraint("Coincident", 6, 2, 7, 1),
    Sketcher.Constraint("Coincident", 7, 2, 4, 1),
    Sketcher.Constraint("Vertical", 0),
    Sketcher.Constraint("Horizontal", 1),
    Sketcher.Constraint("Vertical", 2),
    Sketcher.Constraint("Horizontal", 3),
    Sketcher.Constraint("Vertical", 4),
    Sketcher.Constraint("Horizontal", 5),
    Sketcher.Constraint("Vertical", 6),
    Sketcher.Constraint("Horizontal", 7),
    Sketcher.Constraint("Vertical", 3, 2, 4, 2),
    Sketcher.Constraint("Vertical", 2, 2, 5, 2),
    Sketcher.Constraint("Equal", 2, 4),
    Sketcher.Constraint("DistanceX", 1, 1, 1, 2, Q("17.5 mm")),
    Sketcher.Constraint("DistanceY", 0, 1, 0, 2, Q("14.5 mm")),
    Sketcher.Constraint("DistanceX", -1, 1, 1, 2, Q("33 mm")),
    Sketcher.Constraint("DistanceY", 4, 2, 3, 2, Q("3.4 mm")),
    Sketcher.Constraint("DistanceY", -1, 1, 0, 2, Q("70.65 mm")),
])
pad16 = body.newObject("PartDesign::Pad", "Pad015")
pad16.Profile = sketch16
pad16.Length = 16
pad16.Reversed = True
body2 = doc.addObject("PartDesign::Body", "Body001")

# Sketch on XZ plane
sketch17 = body2.newObject("Sketcher::SketchObject", "Sketch016")
sketch17.AttachmentSupport = (doc.getObject("XZ_Plane001"), [""])
sketch17.MapMode = "FlatFace"
sketch17.AttachmentOffset = App.Placement(App.Vector(0, 0, 15.1), App.Rotation())
sketch17.addGeometry([
    Part.LineSegment(App.Vector(-55, 44, 0), App.Vector(-55, 86, 0)),
    Part.LineSegment(App.Vector(-55, 86, 0), App.Vector(-22, 86, 0)),
    Part.LineSegment(App.Vector(-22, 86, 0), App.Vector(-22, 44, 0)),
    Part.LineSegment(App.Vector(-22, 44, 0), App.Vector(-55, 44, 0)),
], False)
sketch17.addConstraint([
    Sketcher.Constraint("Coincident", 0, 2, 1, 1),
    Sketcher.Constraint("Coincident", 1, 2, 2, 1),
    Sketcher.Constraint("Coincident", 2, 2, 3, 1),
    Sketcher.Constraint("Coincident", 3, 2, 0, 1),
    Sketcher.Constraint("Vertical", 0),
    Sketcher.Constraint("Horizontal", 1),
    Sketcher.Constraint("Vertical", 2),
    Sketcher.Constraint("Horizontal", 3),
    Sketcher.Constraint("DistanceX", 1, 1, 1, 2, Q("33.5 mm")),
    Sketcher.Constraint("DistanceY", 0, 1, 0, 2, Q("42.5 mm")),
    Sketcher.Constraint("DistanceX", 0, 2, -1, 1, Q("55 mm")),
    Sketcher.Constraint("DistanceY", -1, 1, 0, 2, Q("86.2 mm")),
])
pad17 = body2.newObject("PartDesign::Pad", "Pad016")
pad17.Profile = sketch17
pad17.Length = 13.7
pad17.Reversed = True

# Sketch on XZ plane
sketch18 = body2.newObject("Sketcher::SketchObject", "Sketch017")
sketch18.AttachmentSupport = (doc.getObject("XZ_Plane001"), [""])
sketch18.MapMode = "FlatFace"
sketch18.AttachmentOffset = App.Placement(App.Vector(0, 0, 15.1), App.Rotation())
sketch18.addGeometry([
    Part.LineSegment(App.Vector(-22, 44, 0), App.Vector(-22, 74, 0)),
    Part.LineSegment(App.Vector(-22, 74, 0), App.Vector(8, 74, 0)),
    Part.LineSegment(App.Vector(8, 74, 0), App.Vector(8, 44, 0)),
    Part.LineSegment(App.Vector(8, 44, 0), App.Vector(-22, 44, 0)),
], False)
sketch18.addConstraint([
    Sketcher.Constraint("Coincident", 0, 2, 1, 1),
    Sketcher.Constraint("Coincident", 1, 2, 2, 1),
    Sketcher.Constraint("Coincident", 2, 2, 3, 1),
    Sketcher.Constraint("Coincident", 3, 2, 0, 1),
    Sketcher.Constraint("Vertical", 0),
    Sketcher.Constraint("Horizontal", 1),
    Sketcher.Constraint("Vertical", 2),
    Sketcher.Constraint("Horizontal", 3),
    Sketcher.Constraint("Equal", 3, 0),
    Sketcher.Constraint("DistanceX", 1, 1, 1, 2, Q("30 mm")),
    Sketcher.Constraint("DistanceX", 0, 2, -1, 1, Q("21.5 mm")),
    Sketcher.Constraint("DistanceY", -1, 1, 0, 2, Q("73.7 mm")),
])
pad18 = body2.newObject("PartDesign::Pad", "Pad017")
pad18.Profile = sketch18
pad18.Length = 13.7
pad18.Reversed = True
body3 = doc.addObject("PartDesign::Body", "Body002")

# Sketch on XZ plane
sketch19 = body3.newObject("Sketcher::SketchObject", "Sketch018")
sketch19.AttachmentSupport = (doc.getObject("XZ_Plane002"), [""])
sketch19.MapMode = "FlatFace"
sketch19.AttachmentOffset = App.Placement(App.Vector(0, 0, 17.4), App.Rotation())
sketch19.addGeometry([
    Part.LineSegment(App.Vector(-61, 54, 0), App.Vector(-61, 70, 0)),
    Part.LineSegment(App.Vector(-61, 70, 0), App.Vector(-55, 70, 0)),
    Part.LineSegment(App.Vector(-55, 70, 0), App.Vector(-55, 54, 0)),
    Part.LineSegment(App.Vector(-55, 54, 0), App.Vector(-61, 54, 0)),
], False)
sketch19.addConstraint([
    Sketcher.Constraint("Coincident", 0, 2, 1, 1),
    Sketcher.Constraint("Coincident", 1, 2, 2, 1),
    Sketcher.Constraint("Coincident", 2, 2, 3, 1),
    Sketcher.Constraint("Coincident", 3, 2, 0, 1),
    Sketcher.Constraint("Vertical", 0),
    Sketcher.Constraint("Horizontal", 1),
    Sketcher.Constraint("Vertical", 2),
    Sketcher.Constraint("Horizontal", 3),
    Sketcher.Constraint("DistanceY", 0, 1, 0, 2, Q("16 mm")),
    Sketcher.Constraint("DistanceX", 1, 1, 1, 2, Q("5.7 mm")),
    Sketcher.Constraint("DistanceX", 0, 2, -1, 1, Q("61 mm")),
    Sketcher.Constraint("DistanceY", -1, 1, 0, 2, Q("70.5 mm")),
])
pad19 = body3.newObject("PartDesign::Pad", "Pad018")
pad19.Profile = sketch19
pad19.Length = 18.6
pad19.Reversed = True
body.AllowCompound = True
doc.recompute()

boolean = body.newObject("PartDesign::Boolean", "Boolean")
boolean.Type = "Fuse"
boolean.addObjects([body2])

# Sketch on XZ plane
sketch20 = body.newObject("Sketcher::SketchObject", "Sketch019")
sketch20.AttachmentSupport = (doc.getObject("XZ_Plane"), [""])
sketch20.MapMode = "FlatFace"
sketch20.AttachmentOffset = App.Placement(App.Vector(0, 0, 16.4), App.Rotation())
sketch20.addGeometry([
    Part.LineSegment(App.Vector(-48, 85, 0), App.Vector(-48, 93, 0)),
    Part.LineSegment(App.Vector(-48, 93, 0), App.Vector(-39, 93, 0)),
    Part.LineSegment(App.Vector(-39, 93, 0), App.Vector(-39, 85, 0)),
    Part.LineSegment(App.Vector(-39, 85, 0), App.Vector(-48, 85, 0)),
], False)
sketch20.addConstraint([
    Sketcher.Constraint("Coincident", 0, 2, 1, 1),
    Sketcher.Constraint("Coincident", 1, 2, 2, 1),
    Sketcher.Constraint("Coincident", 2, 2, 3, 1),
    Sketcher.Constraint("Coincident", 3, 2, 0, 1),
    Sketcher.Constraint("Vertical", 0),
    Sketcher.Constraint("Horizontal", 1),
    Sketcher.Constraint("Vertical", 2),
    Sketcher.Constraint("Horizontal", 3),
    Sketcher.Constraint("DistanceX", 1, 1, 1, 2, Q("9 mm")),
    Sketcher.Constraint("DistanceY", 0, 1, 0, 2, Q("7.8 mm")),
    Sketcher.Constraint("DistanceY", -1, 1, 0, 2, Q("93 mm")),
    Sketcher.Constraint("DistanceX", 0, 2, -1, 1, Q("48.3 mm")),
])
pad20 = body.newObject("PartDesign::Pad", "Pad019")
pad20.Profile = sketch20
pad20.Length = 3.2
pad20.Reversed = True

# Sketch on XZ plane
sketch21 = body.newObject("Sketcher::SketchObject", "Sketch020")
sketch21.AttachmentSupport = (doc.getObject("XZ_Plane"), [""])
sketch21.MapMode = "FlatFace"
sketch21.AttachmentOffset = App.Placement(App.Vector(0, 0, 16.4), App.Rotation())
sketch21.addGeometry([
    Part.LineSegment(App.Vector(-33, 85, 0), App.Vector(-33, 93, 0)),  # 0
    Part.LineSegment(App.Vector(-33, 93, 0), App.Vector(-25, 93, 0)),  # 1
    Part.LineSegment(App.Vector(-25, 93, 0), App.Vector(-25, 85, 0)),  # 2
    Part.LineSegment(App.Vector(-25, 85, 0), App.Vector(-33, 85, 0)),  # 3
    Part.LineSegment(App.Vector(-20, 85, 0), App.Vector(-20, 93, 0)),  # 4
    Part.LineSegment(App.Vector(-20, 93, 0), App.Vector(-12, 93, 0)),  # 5
    Part.LineSegment(App.Vector(-12, 93, 0), App.Vector(-12, 85, 0)),  # 6
    Part.LineSegment(App.Vector(-12, 85, 0), App.Vector(-20, 85, 0)),  # 7
], False)
sketch21.addConstraint([
    Sketcher.Constraint("Coincident", 0, 2, 1, 1),
    Sketcher.Constraint("Coincident", 1, 2, 2, 1),
    Sketcher.Constraint("Coincident", 2, 2, 3, 1),
    Sketcher.Constraint("Coincident", 3, 2, 0, 1),
    Sketcher.Constraint("Coincident", 4, 2, 5, 1),
    Sketcher.Constraint("Coincident", 5, 2, 6, 1),
    Sketcher.Constraint("Coincident", 6, 2, 7, 1),
    Sketcher.Constraint("Coincident", 7, 2, 4, 1),
    Sketcher.Constraint("Vertical", 0),
    Sketcher.Constraint("Horizontal", 1),
    Sketcher.Constraint("Vertical", 2),
    Sketcher.Constraint("Horizontal", 3),
    Sketcher.Constraint("Vertical", 4),
    Sketcher.Constraint("Horizontal", 5),
    Sketcher.Constraint("Vertical", 6),
    Sketcher.Constraint("Horizontal", 7),
    Sketcher.Constraint("Horizontal", 1, 2, 4, 2),
    Sketcher.Constraint("Horizontal", 3, 2, 6, 2),
    Sketcher.Constraint("Equal", 3, 5),
    Sketcher.Constraint("DistanceY", 0, 1, 0, 2, Q("8 mm")),
    Sketcher.Constraint("DistanceX", 1, 1, 1, 2, Q("7.5 mm")),
    Sketcher.Constraint("DistanceY", -1, 1, 0, 2, Q("93 mm")),
    Sketcher.Constraint("DistanceX", 1, 2, 4, 2, Q("5.9 mm")),
    Sketcher.Constraint("DistanceX", 0, 2, -1, 1, Q("32.95 mm")),
])
pad21 = body.newObject("PartDesign::Pad", "Pad020")
pad21.Profile = sketch21
pad21.Length = 3.4
pad21.Reversed = True

# Sketch on XZ plane
sketch22 = body.newObject("Sketcher::SketchObject", "Sketch021")
sketch22.AttachmentSupport = (doc.getObject("XZ_Plane"), [""])
sketch22.MapMode = "FlatFace"
sketch22.AttachmentOffset = App.Placement(App.Vector(0, 0, 16.4), App.Rotation())
sketch22.addGeometry([
    Part.LineSegment(App.Vector(-8, 76.3, 0), App.Vector(-8, 91.8, 0)),  # 0
    Part.LineSegment(App.Vector(-8, 91.8, 0), App.Vector(-5.2, 91.8, 0)),  # 1
    Part.LineSegment(App.Vector(-5.2, 91.8, 0), App.Vector(-5.2, 76.3, 0)),  # 2
    Part.LineSegment(App.Vector(-5.2, 76.3, 0), App.Vector(-8, 76.3, 0)),  # 3
    Part.LineSegment(App.Vector(-1.8, 76.3, 0), App.Vector(-1.8, 91.8, 0)),  # 4
    Part.LineSegment(App.Vector(-1.8, 91.8, 0), App.Vector(1, 91.8, 0)),  # 5
    Part.LineSegment(App.Vector(1, 91.8, 0), App.Vector(1, 76.3, 0)),  # 6
    Part.LineSegment(App.Vector(1, 76.3, 0), App.Vector(-1.8, 76.3, 0)),  # 7
], False)
sketch22.addConstraint([
    Sketcher.Constraint("Coincident", 0, 2, 1, 1),
    Sketcher.Constraint("Coincident", 1, 2, 2, 1),
    Sketcher.Constraint("Coincident", 2, 2, 3, 1),
    Sketcher.Constraint("Coincident", 3, 2, 0, 1),
    Sketcher.Constraint("Coincident", 4, 2, 5, 1),
    Sketcher.Constraint("Coincident", 5, 2, 6, 1),
    Sketcher.Constraint("Coincident", 6, 2, 7, 1),
    Sketcher.Constraint("Coincident", 7, 2, 4, 1),
    Sketcher.Constraint("Vertical", 0),
    Sketcher.Constraint("Horizontal", 1),
    Sketcher.Constraint("Vertical", 2),
    Sketcher.Constraint("Horizontal", 3),
    Sketcher.Constraint("Vertical", 4),
    Sketcher.Constraint("Horizontal", 5),
    Sketcher.Constraint("Vertical", 6),
    Sketcher.Constraint("Horizontal", 7),
    Sketcher.Constraint("Horizontal", 1, 2, 4, 2),
    Sketcher.Constraint("Horizontal", 3, 2, 6, 2),
    Sketcher.Constraint("Equal", 3, 5),
    Sketcher.Constraint("DistanceX", 1, 1, 1, 2, Q("2.8 mm")),
    Sketcher.Constraint("DistanceY", 0, 1, 0, 2, Q("15.5 mm")),
    Sketcher.Constraint("DistanceX", 0, 2, -1, 1, Q("8 mm")),
    Sketcher.Constraint("DistanceX", -1, 1, 5, 2, Q("1 mm")),
    Sketcher.Constraint("DistanceY", -1, 1, 0, 2, Q("91.8 mm")),
])
pad22 = body.newObject("PartDesign::Pad", "Pad021")
pad22.Profile = sketch22
pad22.Length = 5
pad22.Reversed = True

doc.recompute()
